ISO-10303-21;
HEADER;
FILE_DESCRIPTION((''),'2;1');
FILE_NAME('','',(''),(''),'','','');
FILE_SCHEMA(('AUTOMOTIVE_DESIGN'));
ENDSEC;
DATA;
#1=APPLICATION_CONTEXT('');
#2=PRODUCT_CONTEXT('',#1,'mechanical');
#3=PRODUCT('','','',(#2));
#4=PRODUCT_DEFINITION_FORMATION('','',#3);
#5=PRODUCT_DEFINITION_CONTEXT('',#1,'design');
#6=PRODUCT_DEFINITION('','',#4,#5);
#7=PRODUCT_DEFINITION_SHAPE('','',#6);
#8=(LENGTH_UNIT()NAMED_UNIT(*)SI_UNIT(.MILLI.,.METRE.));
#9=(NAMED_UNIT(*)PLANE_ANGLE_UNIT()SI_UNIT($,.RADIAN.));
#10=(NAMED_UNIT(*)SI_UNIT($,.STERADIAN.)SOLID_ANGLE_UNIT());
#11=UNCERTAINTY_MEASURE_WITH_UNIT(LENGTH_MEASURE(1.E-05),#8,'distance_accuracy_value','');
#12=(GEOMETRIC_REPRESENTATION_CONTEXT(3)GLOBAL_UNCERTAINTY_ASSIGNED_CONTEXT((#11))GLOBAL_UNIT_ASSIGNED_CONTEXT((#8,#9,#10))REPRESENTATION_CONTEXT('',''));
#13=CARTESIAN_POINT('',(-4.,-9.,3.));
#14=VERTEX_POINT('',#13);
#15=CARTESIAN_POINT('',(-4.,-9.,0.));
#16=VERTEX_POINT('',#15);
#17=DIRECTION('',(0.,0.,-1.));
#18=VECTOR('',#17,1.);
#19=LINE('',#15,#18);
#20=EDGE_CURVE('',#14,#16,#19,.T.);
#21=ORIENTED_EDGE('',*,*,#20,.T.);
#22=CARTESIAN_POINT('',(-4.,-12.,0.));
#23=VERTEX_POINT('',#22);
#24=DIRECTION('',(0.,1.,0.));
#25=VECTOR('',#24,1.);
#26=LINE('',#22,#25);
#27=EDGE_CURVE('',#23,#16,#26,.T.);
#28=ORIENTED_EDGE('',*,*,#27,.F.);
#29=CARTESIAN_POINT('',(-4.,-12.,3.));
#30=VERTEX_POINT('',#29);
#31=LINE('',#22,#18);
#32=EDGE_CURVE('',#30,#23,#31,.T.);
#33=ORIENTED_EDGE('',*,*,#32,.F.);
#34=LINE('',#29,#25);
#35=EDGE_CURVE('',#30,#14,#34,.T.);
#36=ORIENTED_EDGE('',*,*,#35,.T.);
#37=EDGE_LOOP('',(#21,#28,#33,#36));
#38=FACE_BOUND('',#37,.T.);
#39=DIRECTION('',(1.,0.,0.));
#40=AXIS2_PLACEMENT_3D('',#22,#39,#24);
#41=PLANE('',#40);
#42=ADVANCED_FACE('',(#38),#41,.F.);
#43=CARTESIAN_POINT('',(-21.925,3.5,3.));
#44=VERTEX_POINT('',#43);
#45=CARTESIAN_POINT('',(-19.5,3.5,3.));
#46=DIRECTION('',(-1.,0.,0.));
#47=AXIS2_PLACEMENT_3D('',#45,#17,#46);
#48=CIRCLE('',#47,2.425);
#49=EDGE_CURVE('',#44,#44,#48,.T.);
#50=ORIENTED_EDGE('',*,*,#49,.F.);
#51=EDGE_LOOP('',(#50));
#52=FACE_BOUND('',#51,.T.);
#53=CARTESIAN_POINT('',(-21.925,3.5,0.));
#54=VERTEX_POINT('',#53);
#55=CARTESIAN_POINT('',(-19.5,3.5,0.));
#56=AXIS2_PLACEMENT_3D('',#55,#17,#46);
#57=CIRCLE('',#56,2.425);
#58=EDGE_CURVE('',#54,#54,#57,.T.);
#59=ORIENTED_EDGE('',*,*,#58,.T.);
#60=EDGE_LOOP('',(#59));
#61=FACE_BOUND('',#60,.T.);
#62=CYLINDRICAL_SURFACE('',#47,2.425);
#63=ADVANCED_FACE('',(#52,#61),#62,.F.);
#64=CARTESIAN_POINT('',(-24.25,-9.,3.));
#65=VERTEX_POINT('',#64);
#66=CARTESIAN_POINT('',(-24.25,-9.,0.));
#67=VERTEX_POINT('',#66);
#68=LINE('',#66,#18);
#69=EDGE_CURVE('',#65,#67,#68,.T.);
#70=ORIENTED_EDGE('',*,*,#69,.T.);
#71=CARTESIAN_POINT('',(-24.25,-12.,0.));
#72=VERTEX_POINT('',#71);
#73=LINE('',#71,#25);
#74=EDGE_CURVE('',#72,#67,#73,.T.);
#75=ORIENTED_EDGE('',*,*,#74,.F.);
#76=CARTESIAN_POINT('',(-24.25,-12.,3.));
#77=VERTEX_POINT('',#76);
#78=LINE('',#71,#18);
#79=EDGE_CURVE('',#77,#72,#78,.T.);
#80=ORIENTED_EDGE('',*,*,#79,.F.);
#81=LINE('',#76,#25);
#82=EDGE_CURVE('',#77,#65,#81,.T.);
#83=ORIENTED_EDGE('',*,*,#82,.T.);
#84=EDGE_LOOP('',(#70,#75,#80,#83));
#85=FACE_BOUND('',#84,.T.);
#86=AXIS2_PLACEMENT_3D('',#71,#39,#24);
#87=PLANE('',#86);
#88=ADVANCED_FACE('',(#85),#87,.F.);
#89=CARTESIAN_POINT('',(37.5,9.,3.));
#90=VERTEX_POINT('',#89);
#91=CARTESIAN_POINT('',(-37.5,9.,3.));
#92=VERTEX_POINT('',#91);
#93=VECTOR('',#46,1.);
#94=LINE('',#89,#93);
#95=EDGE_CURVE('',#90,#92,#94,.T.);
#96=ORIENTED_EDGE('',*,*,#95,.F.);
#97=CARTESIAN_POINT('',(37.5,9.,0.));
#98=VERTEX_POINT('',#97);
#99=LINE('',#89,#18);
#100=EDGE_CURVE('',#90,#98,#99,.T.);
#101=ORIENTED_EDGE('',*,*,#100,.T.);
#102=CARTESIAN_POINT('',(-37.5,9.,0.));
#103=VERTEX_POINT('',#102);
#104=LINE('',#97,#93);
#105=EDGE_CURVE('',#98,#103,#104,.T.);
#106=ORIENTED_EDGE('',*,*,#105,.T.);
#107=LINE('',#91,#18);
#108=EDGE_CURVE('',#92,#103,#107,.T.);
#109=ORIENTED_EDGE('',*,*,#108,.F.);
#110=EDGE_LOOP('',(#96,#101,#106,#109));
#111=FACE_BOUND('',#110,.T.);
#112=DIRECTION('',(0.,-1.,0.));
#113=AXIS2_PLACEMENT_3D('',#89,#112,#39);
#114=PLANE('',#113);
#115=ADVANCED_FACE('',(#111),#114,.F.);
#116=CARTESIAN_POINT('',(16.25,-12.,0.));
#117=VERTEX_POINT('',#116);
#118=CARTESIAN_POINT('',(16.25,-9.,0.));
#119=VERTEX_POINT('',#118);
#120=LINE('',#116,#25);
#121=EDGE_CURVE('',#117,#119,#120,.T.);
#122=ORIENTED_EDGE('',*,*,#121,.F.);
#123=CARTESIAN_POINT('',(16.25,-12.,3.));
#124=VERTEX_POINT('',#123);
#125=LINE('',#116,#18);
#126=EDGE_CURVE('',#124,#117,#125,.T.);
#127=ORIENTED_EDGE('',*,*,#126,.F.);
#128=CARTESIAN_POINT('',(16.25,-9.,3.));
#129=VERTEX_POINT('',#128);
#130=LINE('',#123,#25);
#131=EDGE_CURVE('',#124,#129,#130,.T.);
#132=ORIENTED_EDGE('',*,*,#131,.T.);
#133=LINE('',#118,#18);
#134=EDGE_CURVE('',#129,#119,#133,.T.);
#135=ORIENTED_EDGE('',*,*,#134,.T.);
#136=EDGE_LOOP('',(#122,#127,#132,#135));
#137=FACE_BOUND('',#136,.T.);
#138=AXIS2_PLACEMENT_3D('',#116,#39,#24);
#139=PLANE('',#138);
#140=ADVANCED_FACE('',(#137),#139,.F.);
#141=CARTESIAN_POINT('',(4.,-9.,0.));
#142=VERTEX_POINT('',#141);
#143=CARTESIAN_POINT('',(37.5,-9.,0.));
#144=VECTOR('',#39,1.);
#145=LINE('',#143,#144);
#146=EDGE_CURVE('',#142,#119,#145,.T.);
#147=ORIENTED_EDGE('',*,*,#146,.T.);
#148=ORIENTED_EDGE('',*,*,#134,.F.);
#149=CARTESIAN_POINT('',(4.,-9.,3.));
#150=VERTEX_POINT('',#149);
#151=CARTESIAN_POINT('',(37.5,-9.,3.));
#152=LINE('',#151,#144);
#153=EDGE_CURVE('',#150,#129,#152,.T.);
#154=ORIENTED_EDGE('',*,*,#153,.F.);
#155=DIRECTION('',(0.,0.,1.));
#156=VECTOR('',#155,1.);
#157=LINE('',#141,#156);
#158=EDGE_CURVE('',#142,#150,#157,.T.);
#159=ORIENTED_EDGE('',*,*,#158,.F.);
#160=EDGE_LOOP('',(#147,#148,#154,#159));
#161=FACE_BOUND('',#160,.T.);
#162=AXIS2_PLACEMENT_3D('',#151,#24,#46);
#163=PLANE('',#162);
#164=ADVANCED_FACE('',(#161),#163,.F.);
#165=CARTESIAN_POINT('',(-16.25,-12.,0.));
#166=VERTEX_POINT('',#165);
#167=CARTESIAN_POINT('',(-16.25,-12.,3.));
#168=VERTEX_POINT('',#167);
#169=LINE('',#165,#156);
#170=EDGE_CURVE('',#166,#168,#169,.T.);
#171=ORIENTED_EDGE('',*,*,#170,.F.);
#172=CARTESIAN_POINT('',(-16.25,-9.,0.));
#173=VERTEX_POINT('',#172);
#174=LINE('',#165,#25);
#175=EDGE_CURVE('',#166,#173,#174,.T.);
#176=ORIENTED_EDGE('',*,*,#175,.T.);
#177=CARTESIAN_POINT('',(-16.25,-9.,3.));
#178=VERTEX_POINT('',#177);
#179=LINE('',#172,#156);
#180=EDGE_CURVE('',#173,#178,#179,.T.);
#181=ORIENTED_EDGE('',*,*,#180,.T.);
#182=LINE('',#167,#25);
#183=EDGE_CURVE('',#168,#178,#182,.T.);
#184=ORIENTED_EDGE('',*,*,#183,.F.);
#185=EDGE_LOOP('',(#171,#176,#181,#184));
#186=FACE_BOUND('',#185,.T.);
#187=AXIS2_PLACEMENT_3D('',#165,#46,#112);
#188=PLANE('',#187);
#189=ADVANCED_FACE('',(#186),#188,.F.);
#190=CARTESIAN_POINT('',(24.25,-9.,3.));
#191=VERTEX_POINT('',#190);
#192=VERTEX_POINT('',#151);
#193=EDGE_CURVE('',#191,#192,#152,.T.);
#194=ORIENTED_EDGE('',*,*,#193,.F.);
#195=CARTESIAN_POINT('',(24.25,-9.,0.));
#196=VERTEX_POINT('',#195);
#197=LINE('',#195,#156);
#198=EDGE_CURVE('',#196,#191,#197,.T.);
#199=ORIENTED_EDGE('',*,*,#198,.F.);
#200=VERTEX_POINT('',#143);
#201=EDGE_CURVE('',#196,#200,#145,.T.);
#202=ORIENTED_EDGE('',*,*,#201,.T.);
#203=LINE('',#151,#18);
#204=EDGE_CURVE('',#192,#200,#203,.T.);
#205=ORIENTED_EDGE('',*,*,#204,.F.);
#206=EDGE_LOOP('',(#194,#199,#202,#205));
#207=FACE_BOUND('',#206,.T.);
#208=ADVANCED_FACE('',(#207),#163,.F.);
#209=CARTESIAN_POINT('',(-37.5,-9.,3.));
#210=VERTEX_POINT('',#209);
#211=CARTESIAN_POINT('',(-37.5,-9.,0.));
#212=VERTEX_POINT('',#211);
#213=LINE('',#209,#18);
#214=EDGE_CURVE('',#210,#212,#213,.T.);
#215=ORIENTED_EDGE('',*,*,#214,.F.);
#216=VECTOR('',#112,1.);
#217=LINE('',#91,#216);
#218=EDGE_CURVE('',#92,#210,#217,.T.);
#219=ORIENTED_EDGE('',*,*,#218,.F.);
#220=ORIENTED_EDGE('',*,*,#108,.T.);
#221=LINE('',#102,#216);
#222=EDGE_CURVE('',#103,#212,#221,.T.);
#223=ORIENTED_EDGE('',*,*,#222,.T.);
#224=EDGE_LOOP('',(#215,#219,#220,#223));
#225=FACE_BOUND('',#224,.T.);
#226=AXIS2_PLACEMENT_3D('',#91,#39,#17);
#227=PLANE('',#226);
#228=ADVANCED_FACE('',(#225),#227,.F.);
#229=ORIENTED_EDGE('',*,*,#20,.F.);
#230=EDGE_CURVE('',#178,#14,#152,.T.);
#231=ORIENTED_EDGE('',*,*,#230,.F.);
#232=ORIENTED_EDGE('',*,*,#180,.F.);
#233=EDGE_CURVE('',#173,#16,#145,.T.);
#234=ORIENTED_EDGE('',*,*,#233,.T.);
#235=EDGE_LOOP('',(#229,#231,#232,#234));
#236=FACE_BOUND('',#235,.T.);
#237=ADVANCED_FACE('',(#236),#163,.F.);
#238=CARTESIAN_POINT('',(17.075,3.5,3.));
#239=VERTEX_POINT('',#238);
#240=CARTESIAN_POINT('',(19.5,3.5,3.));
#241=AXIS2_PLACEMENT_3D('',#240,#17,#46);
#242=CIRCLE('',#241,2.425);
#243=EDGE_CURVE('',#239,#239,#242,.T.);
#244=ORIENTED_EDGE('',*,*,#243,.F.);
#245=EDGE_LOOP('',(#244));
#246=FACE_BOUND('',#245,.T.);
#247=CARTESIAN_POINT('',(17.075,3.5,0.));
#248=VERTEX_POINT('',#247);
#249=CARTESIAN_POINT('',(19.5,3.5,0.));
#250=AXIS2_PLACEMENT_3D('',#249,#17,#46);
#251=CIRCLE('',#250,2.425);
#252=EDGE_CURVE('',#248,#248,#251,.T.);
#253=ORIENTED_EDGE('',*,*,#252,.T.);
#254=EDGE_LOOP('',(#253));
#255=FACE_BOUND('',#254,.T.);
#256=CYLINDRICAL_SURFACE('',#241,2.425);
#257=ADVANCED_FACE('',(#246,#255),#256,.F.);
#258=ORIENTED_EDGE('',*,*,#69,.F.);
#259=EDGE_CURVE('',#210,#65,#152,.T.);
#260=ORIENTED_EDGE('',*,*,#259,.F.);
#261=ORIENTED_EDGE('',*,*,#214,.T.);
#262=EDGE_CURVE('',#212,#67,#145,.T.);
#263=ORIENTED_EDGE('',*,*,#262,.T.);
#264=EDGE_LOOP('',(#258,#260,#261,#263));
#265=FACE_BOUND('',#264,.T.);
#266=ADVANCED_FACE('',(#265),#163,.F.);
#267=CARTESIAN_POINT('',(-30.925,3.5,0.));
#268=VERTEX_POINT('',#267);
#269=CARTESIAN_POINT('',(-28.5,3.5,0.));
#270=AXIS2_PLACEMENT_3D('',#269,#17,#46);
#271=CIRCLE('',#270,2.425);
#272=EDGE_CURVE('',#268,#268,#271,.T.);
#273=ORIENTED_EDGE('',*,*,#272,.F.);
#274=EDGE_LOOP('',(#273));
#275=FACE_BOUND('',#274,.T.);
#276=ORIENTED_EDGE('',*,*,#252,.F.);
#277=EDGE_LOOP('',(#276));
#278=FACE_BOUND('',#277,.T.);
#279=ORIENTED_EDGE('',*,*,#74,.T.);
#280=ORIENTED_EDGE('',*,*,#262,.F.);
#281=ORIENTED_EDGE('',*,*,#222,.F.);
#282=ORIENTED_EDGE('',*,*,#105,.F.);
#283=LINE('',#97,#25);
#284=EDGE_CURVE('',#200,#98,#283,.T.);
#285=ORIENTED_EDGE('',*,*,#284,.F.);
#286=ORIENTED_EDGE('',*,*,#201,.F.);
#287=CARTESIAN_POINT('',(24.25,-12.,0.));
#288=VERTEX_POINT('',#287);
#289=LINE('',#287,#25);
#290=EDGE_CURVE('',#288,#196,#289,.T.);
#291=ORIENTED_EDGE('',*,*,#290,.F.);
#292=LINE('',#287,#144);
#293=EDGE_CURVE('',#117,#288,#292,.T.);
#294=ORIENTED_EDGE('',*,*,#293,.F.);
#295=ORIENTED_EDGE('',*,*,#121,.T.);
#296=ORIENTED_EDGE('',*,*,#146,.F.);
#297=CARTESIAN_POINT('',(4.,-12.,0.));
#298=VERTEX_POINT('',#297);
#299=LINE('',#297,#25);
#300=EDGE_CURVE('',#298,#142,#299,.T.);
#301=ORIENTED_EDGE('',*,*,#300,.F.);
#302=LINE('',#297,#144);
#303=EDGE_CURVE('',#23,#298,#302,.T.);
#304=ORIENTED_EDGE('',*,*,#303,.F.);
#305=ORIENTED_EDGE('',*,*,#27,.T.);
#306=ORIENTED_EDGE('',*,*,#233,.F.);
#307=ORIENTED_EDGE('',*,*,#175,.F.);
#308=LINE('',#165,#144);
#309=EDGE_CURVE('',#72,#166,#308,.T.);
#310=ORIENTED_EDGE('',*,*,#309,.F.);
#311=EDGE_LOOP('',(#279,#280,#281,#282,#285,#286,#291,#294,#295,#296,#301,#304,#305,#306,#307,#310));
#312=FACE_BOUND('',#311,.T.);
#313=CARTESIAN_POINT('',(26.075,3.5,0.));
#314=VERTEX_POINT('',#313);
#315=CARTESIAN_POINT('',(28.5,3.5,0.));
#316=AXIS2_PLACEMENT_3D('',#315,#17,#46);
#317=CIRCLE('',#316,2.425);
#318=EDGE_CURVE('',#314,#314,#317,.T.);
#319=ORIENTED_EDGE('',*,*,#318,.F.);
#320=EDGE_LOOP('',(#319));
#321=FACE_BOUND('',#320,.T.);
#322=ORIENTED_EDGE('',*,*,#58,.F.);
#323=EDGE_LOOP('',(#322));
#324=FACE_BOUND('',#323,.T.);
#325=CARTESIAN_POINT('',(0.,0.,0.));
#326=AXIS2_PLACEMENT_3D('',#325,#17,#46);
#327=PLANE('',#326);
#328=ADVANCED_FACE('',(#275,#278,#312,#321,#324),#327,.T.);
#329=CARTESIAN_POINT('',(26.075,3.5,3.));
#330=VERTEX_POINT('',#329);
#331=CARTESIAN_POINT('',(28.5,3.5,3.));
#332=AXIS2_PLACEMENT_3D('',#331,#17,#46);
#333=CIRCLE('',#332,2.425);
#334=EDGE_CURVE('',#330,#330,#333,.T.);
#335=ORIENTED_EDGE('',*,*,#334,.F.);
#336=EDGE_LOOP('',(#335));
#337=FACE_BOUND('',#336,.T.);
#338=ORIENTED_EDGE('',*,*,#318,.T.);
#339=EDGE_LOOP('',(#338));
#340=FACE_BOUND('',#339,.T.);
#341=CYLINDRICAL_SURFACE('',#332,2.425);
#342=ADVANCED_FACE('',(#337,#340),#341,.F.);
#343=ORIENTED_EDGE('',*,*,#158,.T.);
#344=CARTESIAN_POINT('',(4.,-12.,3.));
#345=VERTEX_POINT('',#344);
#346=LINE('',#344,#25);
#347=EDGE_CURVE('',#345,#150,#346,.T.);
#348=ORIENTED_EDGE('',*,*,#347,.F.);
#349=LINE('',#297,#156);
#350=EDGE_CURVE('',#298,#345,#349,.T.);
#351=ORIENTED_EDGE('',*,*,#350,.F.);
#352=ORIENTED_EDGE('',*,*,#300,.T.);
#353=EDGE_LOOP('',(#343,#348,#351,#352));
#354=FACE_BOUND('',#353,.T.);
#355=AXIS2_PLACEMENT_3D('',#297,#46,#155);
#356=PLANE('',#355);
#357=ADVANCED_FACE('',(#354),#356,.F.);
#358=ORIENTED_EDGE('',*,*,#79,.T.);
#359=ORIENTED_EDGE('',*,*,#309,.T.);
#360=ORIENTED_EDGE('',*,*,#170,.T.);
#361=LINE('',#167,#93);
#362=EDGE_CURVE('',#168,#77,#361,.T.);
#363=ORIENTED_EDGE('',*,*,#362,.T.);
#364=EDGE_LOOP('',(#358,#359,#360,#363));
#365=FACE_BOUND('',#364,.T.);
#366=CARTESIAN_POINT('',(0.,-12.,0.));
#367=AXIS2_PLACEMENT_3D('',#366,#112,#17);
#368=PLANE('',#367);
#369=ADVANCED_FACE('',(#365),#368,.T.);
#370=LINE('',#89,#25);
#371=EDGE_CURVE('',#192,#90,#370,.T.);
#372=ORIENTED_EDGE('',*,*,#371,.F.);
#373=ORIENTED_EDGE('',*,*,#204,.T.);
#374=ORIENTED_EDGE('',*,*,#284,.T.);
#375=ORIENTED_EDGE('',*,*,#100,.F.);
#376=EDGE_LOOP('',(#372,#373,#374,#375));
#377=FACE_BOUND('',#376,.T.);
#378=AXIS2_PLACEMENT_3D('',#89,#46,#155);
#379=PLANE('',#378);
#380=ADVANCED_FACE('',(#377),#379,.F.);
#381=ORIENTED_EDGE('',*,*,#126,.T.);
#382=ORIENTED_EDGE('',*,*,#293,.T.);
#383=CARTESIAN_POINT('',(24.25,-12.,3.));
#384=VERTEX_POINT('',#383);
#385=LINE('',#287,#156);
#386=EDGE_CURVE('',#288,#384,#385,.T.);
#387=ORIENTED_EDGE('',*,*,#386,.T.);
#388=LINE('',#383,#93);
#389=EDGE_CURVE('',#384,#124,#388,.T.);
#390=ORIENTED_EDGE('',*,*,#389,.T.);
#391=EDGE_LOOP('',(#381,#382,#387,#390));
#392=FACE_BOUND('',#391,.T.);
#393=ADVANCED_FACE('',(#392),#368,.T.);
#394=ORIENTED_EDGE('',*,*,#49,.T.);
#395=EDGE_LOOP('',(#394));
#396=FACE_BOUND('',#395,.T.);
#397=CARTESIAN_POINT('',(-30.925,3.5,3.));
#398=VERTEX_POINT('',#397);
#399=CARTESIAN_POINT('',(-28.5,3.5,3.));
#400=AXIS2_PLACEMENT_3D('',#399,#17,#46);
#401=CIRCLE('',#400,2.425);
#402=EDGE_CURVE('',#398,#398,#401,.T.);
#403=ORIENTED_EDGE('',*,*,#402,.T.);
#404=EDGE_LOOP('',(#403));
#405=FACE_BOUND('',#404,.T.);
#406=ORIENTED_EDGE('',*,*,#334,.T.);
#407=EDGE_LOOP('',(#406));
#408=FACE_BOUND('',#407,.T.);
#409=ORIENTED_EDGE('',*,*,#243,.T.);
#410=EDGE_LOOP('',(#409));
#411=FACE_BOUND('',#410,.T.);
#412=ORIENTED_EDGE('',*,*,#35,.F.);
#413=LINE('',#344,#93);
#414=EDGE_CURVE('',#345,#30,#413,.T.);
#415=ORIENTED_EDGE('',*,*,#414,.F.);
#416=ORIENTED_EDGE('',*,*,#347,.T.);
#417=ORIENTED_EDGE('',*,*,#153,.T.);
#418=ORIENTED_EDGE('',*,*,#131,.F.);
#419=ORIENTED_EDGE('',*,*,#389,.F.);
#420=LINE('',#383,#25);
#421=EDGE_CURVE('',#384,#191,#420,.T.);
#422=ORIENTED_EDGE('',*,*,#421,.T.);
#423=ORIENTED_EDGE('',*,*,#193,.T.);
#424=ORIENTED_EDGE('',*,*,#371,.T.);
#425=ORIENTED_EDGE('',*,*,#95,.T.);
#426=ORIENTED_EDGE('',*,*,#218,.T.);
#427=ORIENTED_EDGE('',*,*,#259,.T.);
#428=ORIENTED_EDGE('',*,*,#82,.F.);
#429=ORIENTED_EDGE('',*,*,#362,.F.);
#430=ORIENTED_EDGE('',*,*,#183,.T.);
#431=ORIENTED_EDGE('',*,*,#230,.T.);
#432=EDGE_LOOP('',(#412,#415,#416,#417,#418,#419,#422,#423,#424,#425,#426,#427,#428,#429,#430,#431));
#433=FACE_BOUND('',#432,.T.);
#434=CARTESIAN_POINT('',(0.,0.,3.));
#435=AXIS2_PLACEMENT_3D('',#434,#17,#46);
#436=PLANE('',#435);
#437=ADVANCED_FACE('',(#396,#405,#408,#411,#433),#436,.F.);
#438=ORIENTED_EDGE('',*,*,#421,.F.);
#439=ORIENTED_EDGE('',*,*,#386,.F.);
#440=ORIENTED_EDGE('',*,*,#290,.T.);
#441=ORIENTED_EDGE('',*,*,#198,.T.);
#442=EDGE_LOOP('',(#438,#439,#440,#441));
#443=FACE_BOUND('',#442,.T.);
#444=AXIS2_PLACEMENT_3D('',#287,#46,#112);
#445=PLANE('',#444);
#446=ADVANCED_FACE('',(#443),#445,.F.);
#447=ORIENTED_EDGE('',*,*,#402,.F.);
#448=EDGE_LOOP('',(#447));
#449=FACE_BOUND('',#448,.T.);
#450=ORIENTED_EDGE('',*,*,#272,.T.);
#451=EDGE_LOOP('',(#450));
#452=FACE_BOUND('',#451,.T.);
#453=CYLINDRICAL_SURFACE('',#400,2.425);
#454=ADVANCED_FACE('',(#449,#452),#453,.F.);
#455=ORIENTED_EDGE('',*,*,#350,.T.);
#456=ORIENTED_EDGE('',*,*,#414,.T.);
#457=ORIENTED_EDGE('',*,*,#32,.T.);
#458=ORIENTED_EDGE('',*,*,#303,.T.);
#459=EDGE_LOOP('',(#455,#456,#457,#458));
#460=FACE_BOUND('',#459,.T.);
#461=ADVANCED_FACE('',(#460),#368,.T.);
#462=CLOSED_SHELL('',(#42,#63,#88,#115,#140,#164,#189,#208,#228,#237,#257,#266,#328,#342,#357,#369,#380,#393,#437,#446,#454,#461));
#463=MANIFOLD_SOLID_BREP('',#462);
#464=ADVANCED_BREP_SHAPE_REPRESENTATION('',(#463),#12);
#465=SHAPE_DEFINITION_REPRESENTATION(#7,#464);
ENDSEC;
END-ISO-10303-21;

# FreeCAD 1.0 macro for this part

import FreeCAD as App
import Part
import Sketcher


def add_polygon(sketch, points):
    """Adds a closed chain of lines whose ends are joined by coincident constraints."""
    first, n = sketch.GeometryCount, len(points)
    for a, b in zip(points, points[1:] + points[:1]):
        sketch.addGeometry(Part.LineSegment(App.Vector(*a, 0), App.Vector(*b, 0)), False)
    for i in range(n):
        sketch.addConstraint(Sketcher.Constraint("Coincident", first + i, 2, first + (i + 1) % n, 1))

doc = App.newDocument("Part")
params = doc.addObject("Spreadsheet::Sheet", "Params")
for row, (alias, value) in enumerate([
    ("sketch1_width", "75 mm"),
    ("sketch1_height", "18 mm"),
    ("pad1_length", "3 mm"),
    ("sketch2_width", "8 mm"),
    ("sketch2_height", "3 mm"),
    ("pad2_length", "3 mm"),
    ("sketch3_diameter", "4.85 mm"),
    ("pocket1_length", "3 mm"),
], start=1):
    params.set(f"A{row}", alias)
    params.set(f"B{row}", "=" + value)
    params.setAlias(f"B{row}", alias)

body = doc.addObject("PartDesign::Body", "Body")

sketch1 = body.newObject("Sketcher::SketchObject", "Sketch")
sketch1.AttachmentSupport = (doc.getObject("XY_Plane"), [""])
sketch1.MapMode = "FlatFace"
add_polygon(sketch1, [(-38, 9), (-38, -9), (38, -9), (38, 9)])
sketch1.addConstraint(Sketcher.Constraint("Vertical", 0))
sketch1.addConstraint(Sketcher.Constraint("Horizontal", 1))
sketch1.addConstraint(Sketcher.Constraint("Vertical", 2))
sketch1.addConstraint(Sketcher.Constraint("Horizontal", 3))
sketch1.addConstraint(Sketcher.Constraint("Symmetric", 0, 2, 2, 2, -1, 1))
sketch1.addConstraint(Sketcher.Constraint("DistanceX", 1, 1, 1, 2, 75.0))
sketch1.addConstraint(Sketcher.Constraint("DistanceY", 0, 2, 0, 1, 18.0))
sketch1.setExpression("Constraints[9]", "Params.sketch1_width")
sketch1.setExpression("Constraints[10]", "Params.sketch1_height")
pad1 = body.newObject("PartDesign::Pad", "Pad")
pad1.Profile = sketch1
pad1.setExpression("Length", "Params.pad1_length")

sketch2 = body.newObject("Sketcher::SketchObject", "Sketch001")
sketch2.AttachmentSupport = (doc.getObject("XZ_Plane"), [""])
sketch2.MapMode = "FlatFace"
sketch2.AttachmentOffset = App.Placement(App.Vector(0, 0, 9), App.Rotation())
add_polygon(sketch2, [(24.2, 0), (24.2, 3), (16.2, 3), (16.2, 0)])
add_polygon(sketch2, [(4, 0), (4, 3), (-4, 3), (-4, 0)])
add_polygon(sketch2, [(-16.2, 0), (-16.2, 3), (-24.2, 3), (-24.2, 0)])
sketch2.addConstraint(Sketcher.Constraint("Vertical", 0))
sketch2.addConstraint(Sketcher.Constraint("Horizontal", 1))
sketch2.addConstraint(Sketcher.Constraint("Vertical", 2))
sketch2.addConstraint(Sketcher.Constraint("Horizontal", 3))
sketch2.addConstraint(Sketcher.Constraint("Vertical", 4))
sketch2.addConstraint(Sketcher.Constraint("Horizontal", 5))
sketch2.addConstraint(Sketcher.Constraint("Vertical", 6))
sketch2.addConstraint(Sketcher.Constraint("Horizontal", 7))
sketch2.addConstraint(Sketcher.Constraint("Vertical", 8))
sketch2.addConstraint(Sketcher.Constraint("Horizontal", 9))
sketch2.addConstraint(Sketcher.Constraint("Vertical", 10))
sketch2.addConstraint(Sketcher.Constraint("Horizontal", 11))
sketch2.addConstraint(Sketcher.Constraint("Symmetric", 6, 2, 7, 2, -1, 1))
sketch2.addConstraint(Sketcher.Constraint("Symmetric", 3, 2, 10, 2, -1, 1))
sketch2.addConstraint(Sketcher.Constraint("Symmetric", 1, 2, 8, 2, -2))
sketch2.addConstraint(Sketcher.Constraint("PointOnObject", 2, 2, -1))
sketch2.addConstraint(Sketcher.Constraint("Horizontal", 1, 2, 4, 2))
sketch2.addConstraint(Sketcher.Constraint("Equal", 3, 5))
sketch2.addConstraint(Sketcher.Constraint("DistanceX", 1, 2, 1, 1, 8.0))
sketch2.addConstraint(Sketcher.Constraint("DistanceY", 0, 1, 0, 2, 3.0))
sketch2.addConstraint(Sketcher.Constraint("DistanceX", 8, 2, 1, 2, 32.5))
sketch2.setExpression("Constraints[30]", "Params.sketch2_width")
sketch2.setExpression("Constraints[31]", "Params.sketch2_height")
pad2 = body.newObject("PartDesign::Pad", "Pad001")
pad2.Profile = sketch2
pad2.setExpression("Length", "Params.pad2_length")

sketch3 = body.newObject("Sketcher::SketchObject", "Sketch002")
sketch3.AttachmentSupport = (doc.getObject("XY_Plane"), [""])
sketch3.MapMode = "FlatFace"
sketch3.addGeometry(Part.Circle(App.Vector(28.5, 3.5, 0), App.Vector(0, 0, 1), 2.4), False)
sketch3.addGeometry(Part.Circle(App.Vector(-28.5, 3.5, 0), App.Vector(0, 0, 1), 2.4), False)
sketch3.addGeometry(Part.Circle(App.Vector(19.5, 3.5, 0), App.Vector(0, 0, 1), 2.4), False)
sketch3.addGeometry(Part.Circle(App.Vector(-19.5, 3.5, 0), App.Vector(0, 0, 1), 2.4), False)
sketch3.addConstraint(Sketcher.Constraint("Equal", 0, 1))
sketch3.addConstraint(Sketcher.Constraint("Equal", 1, 2))
sketch3.addConstraint(Sketcher.Constraint("Equal", 2, 3))
sketch3.addConstraint(Sketcher.Constraint("Symmetric", 0, 3, 1, 3, -2))
sketch3.addConstraint(Sketcher.Constraint("Symmetric", 2, 3, 3, 3, -2))
sketch3.addConstraint(Sketcher.Constraint("Horizontal", 1, 3, 2, 3))
sketch3.addConstraint(Sketcher.Constraint("Diameter", 0, 4.85))
sketch3.addConstraint(Sketcher.Constraint("DistanceX", 1, 3, 0, 3, 57.0))
sketch3.addConstraint(Sketcher.Constraint("DistanceX", 2, 3, 0, 3, 9.0))
sketch3.addConstraint(Sketcher.Constraint("DistanceY", -1, 1, 0, 3, 3.5))
sketch3.setExpression("Constraints[6]", "Params.sketch3_diameter")
pocket1 = body.newObject("PartDesign::Pocket", "Pocket")
pocket1.Profile = sketch3
pocket1.setExpression("Length", "Params.pocket1_length")
pocket1.Reversed = True

doc.recompute()
